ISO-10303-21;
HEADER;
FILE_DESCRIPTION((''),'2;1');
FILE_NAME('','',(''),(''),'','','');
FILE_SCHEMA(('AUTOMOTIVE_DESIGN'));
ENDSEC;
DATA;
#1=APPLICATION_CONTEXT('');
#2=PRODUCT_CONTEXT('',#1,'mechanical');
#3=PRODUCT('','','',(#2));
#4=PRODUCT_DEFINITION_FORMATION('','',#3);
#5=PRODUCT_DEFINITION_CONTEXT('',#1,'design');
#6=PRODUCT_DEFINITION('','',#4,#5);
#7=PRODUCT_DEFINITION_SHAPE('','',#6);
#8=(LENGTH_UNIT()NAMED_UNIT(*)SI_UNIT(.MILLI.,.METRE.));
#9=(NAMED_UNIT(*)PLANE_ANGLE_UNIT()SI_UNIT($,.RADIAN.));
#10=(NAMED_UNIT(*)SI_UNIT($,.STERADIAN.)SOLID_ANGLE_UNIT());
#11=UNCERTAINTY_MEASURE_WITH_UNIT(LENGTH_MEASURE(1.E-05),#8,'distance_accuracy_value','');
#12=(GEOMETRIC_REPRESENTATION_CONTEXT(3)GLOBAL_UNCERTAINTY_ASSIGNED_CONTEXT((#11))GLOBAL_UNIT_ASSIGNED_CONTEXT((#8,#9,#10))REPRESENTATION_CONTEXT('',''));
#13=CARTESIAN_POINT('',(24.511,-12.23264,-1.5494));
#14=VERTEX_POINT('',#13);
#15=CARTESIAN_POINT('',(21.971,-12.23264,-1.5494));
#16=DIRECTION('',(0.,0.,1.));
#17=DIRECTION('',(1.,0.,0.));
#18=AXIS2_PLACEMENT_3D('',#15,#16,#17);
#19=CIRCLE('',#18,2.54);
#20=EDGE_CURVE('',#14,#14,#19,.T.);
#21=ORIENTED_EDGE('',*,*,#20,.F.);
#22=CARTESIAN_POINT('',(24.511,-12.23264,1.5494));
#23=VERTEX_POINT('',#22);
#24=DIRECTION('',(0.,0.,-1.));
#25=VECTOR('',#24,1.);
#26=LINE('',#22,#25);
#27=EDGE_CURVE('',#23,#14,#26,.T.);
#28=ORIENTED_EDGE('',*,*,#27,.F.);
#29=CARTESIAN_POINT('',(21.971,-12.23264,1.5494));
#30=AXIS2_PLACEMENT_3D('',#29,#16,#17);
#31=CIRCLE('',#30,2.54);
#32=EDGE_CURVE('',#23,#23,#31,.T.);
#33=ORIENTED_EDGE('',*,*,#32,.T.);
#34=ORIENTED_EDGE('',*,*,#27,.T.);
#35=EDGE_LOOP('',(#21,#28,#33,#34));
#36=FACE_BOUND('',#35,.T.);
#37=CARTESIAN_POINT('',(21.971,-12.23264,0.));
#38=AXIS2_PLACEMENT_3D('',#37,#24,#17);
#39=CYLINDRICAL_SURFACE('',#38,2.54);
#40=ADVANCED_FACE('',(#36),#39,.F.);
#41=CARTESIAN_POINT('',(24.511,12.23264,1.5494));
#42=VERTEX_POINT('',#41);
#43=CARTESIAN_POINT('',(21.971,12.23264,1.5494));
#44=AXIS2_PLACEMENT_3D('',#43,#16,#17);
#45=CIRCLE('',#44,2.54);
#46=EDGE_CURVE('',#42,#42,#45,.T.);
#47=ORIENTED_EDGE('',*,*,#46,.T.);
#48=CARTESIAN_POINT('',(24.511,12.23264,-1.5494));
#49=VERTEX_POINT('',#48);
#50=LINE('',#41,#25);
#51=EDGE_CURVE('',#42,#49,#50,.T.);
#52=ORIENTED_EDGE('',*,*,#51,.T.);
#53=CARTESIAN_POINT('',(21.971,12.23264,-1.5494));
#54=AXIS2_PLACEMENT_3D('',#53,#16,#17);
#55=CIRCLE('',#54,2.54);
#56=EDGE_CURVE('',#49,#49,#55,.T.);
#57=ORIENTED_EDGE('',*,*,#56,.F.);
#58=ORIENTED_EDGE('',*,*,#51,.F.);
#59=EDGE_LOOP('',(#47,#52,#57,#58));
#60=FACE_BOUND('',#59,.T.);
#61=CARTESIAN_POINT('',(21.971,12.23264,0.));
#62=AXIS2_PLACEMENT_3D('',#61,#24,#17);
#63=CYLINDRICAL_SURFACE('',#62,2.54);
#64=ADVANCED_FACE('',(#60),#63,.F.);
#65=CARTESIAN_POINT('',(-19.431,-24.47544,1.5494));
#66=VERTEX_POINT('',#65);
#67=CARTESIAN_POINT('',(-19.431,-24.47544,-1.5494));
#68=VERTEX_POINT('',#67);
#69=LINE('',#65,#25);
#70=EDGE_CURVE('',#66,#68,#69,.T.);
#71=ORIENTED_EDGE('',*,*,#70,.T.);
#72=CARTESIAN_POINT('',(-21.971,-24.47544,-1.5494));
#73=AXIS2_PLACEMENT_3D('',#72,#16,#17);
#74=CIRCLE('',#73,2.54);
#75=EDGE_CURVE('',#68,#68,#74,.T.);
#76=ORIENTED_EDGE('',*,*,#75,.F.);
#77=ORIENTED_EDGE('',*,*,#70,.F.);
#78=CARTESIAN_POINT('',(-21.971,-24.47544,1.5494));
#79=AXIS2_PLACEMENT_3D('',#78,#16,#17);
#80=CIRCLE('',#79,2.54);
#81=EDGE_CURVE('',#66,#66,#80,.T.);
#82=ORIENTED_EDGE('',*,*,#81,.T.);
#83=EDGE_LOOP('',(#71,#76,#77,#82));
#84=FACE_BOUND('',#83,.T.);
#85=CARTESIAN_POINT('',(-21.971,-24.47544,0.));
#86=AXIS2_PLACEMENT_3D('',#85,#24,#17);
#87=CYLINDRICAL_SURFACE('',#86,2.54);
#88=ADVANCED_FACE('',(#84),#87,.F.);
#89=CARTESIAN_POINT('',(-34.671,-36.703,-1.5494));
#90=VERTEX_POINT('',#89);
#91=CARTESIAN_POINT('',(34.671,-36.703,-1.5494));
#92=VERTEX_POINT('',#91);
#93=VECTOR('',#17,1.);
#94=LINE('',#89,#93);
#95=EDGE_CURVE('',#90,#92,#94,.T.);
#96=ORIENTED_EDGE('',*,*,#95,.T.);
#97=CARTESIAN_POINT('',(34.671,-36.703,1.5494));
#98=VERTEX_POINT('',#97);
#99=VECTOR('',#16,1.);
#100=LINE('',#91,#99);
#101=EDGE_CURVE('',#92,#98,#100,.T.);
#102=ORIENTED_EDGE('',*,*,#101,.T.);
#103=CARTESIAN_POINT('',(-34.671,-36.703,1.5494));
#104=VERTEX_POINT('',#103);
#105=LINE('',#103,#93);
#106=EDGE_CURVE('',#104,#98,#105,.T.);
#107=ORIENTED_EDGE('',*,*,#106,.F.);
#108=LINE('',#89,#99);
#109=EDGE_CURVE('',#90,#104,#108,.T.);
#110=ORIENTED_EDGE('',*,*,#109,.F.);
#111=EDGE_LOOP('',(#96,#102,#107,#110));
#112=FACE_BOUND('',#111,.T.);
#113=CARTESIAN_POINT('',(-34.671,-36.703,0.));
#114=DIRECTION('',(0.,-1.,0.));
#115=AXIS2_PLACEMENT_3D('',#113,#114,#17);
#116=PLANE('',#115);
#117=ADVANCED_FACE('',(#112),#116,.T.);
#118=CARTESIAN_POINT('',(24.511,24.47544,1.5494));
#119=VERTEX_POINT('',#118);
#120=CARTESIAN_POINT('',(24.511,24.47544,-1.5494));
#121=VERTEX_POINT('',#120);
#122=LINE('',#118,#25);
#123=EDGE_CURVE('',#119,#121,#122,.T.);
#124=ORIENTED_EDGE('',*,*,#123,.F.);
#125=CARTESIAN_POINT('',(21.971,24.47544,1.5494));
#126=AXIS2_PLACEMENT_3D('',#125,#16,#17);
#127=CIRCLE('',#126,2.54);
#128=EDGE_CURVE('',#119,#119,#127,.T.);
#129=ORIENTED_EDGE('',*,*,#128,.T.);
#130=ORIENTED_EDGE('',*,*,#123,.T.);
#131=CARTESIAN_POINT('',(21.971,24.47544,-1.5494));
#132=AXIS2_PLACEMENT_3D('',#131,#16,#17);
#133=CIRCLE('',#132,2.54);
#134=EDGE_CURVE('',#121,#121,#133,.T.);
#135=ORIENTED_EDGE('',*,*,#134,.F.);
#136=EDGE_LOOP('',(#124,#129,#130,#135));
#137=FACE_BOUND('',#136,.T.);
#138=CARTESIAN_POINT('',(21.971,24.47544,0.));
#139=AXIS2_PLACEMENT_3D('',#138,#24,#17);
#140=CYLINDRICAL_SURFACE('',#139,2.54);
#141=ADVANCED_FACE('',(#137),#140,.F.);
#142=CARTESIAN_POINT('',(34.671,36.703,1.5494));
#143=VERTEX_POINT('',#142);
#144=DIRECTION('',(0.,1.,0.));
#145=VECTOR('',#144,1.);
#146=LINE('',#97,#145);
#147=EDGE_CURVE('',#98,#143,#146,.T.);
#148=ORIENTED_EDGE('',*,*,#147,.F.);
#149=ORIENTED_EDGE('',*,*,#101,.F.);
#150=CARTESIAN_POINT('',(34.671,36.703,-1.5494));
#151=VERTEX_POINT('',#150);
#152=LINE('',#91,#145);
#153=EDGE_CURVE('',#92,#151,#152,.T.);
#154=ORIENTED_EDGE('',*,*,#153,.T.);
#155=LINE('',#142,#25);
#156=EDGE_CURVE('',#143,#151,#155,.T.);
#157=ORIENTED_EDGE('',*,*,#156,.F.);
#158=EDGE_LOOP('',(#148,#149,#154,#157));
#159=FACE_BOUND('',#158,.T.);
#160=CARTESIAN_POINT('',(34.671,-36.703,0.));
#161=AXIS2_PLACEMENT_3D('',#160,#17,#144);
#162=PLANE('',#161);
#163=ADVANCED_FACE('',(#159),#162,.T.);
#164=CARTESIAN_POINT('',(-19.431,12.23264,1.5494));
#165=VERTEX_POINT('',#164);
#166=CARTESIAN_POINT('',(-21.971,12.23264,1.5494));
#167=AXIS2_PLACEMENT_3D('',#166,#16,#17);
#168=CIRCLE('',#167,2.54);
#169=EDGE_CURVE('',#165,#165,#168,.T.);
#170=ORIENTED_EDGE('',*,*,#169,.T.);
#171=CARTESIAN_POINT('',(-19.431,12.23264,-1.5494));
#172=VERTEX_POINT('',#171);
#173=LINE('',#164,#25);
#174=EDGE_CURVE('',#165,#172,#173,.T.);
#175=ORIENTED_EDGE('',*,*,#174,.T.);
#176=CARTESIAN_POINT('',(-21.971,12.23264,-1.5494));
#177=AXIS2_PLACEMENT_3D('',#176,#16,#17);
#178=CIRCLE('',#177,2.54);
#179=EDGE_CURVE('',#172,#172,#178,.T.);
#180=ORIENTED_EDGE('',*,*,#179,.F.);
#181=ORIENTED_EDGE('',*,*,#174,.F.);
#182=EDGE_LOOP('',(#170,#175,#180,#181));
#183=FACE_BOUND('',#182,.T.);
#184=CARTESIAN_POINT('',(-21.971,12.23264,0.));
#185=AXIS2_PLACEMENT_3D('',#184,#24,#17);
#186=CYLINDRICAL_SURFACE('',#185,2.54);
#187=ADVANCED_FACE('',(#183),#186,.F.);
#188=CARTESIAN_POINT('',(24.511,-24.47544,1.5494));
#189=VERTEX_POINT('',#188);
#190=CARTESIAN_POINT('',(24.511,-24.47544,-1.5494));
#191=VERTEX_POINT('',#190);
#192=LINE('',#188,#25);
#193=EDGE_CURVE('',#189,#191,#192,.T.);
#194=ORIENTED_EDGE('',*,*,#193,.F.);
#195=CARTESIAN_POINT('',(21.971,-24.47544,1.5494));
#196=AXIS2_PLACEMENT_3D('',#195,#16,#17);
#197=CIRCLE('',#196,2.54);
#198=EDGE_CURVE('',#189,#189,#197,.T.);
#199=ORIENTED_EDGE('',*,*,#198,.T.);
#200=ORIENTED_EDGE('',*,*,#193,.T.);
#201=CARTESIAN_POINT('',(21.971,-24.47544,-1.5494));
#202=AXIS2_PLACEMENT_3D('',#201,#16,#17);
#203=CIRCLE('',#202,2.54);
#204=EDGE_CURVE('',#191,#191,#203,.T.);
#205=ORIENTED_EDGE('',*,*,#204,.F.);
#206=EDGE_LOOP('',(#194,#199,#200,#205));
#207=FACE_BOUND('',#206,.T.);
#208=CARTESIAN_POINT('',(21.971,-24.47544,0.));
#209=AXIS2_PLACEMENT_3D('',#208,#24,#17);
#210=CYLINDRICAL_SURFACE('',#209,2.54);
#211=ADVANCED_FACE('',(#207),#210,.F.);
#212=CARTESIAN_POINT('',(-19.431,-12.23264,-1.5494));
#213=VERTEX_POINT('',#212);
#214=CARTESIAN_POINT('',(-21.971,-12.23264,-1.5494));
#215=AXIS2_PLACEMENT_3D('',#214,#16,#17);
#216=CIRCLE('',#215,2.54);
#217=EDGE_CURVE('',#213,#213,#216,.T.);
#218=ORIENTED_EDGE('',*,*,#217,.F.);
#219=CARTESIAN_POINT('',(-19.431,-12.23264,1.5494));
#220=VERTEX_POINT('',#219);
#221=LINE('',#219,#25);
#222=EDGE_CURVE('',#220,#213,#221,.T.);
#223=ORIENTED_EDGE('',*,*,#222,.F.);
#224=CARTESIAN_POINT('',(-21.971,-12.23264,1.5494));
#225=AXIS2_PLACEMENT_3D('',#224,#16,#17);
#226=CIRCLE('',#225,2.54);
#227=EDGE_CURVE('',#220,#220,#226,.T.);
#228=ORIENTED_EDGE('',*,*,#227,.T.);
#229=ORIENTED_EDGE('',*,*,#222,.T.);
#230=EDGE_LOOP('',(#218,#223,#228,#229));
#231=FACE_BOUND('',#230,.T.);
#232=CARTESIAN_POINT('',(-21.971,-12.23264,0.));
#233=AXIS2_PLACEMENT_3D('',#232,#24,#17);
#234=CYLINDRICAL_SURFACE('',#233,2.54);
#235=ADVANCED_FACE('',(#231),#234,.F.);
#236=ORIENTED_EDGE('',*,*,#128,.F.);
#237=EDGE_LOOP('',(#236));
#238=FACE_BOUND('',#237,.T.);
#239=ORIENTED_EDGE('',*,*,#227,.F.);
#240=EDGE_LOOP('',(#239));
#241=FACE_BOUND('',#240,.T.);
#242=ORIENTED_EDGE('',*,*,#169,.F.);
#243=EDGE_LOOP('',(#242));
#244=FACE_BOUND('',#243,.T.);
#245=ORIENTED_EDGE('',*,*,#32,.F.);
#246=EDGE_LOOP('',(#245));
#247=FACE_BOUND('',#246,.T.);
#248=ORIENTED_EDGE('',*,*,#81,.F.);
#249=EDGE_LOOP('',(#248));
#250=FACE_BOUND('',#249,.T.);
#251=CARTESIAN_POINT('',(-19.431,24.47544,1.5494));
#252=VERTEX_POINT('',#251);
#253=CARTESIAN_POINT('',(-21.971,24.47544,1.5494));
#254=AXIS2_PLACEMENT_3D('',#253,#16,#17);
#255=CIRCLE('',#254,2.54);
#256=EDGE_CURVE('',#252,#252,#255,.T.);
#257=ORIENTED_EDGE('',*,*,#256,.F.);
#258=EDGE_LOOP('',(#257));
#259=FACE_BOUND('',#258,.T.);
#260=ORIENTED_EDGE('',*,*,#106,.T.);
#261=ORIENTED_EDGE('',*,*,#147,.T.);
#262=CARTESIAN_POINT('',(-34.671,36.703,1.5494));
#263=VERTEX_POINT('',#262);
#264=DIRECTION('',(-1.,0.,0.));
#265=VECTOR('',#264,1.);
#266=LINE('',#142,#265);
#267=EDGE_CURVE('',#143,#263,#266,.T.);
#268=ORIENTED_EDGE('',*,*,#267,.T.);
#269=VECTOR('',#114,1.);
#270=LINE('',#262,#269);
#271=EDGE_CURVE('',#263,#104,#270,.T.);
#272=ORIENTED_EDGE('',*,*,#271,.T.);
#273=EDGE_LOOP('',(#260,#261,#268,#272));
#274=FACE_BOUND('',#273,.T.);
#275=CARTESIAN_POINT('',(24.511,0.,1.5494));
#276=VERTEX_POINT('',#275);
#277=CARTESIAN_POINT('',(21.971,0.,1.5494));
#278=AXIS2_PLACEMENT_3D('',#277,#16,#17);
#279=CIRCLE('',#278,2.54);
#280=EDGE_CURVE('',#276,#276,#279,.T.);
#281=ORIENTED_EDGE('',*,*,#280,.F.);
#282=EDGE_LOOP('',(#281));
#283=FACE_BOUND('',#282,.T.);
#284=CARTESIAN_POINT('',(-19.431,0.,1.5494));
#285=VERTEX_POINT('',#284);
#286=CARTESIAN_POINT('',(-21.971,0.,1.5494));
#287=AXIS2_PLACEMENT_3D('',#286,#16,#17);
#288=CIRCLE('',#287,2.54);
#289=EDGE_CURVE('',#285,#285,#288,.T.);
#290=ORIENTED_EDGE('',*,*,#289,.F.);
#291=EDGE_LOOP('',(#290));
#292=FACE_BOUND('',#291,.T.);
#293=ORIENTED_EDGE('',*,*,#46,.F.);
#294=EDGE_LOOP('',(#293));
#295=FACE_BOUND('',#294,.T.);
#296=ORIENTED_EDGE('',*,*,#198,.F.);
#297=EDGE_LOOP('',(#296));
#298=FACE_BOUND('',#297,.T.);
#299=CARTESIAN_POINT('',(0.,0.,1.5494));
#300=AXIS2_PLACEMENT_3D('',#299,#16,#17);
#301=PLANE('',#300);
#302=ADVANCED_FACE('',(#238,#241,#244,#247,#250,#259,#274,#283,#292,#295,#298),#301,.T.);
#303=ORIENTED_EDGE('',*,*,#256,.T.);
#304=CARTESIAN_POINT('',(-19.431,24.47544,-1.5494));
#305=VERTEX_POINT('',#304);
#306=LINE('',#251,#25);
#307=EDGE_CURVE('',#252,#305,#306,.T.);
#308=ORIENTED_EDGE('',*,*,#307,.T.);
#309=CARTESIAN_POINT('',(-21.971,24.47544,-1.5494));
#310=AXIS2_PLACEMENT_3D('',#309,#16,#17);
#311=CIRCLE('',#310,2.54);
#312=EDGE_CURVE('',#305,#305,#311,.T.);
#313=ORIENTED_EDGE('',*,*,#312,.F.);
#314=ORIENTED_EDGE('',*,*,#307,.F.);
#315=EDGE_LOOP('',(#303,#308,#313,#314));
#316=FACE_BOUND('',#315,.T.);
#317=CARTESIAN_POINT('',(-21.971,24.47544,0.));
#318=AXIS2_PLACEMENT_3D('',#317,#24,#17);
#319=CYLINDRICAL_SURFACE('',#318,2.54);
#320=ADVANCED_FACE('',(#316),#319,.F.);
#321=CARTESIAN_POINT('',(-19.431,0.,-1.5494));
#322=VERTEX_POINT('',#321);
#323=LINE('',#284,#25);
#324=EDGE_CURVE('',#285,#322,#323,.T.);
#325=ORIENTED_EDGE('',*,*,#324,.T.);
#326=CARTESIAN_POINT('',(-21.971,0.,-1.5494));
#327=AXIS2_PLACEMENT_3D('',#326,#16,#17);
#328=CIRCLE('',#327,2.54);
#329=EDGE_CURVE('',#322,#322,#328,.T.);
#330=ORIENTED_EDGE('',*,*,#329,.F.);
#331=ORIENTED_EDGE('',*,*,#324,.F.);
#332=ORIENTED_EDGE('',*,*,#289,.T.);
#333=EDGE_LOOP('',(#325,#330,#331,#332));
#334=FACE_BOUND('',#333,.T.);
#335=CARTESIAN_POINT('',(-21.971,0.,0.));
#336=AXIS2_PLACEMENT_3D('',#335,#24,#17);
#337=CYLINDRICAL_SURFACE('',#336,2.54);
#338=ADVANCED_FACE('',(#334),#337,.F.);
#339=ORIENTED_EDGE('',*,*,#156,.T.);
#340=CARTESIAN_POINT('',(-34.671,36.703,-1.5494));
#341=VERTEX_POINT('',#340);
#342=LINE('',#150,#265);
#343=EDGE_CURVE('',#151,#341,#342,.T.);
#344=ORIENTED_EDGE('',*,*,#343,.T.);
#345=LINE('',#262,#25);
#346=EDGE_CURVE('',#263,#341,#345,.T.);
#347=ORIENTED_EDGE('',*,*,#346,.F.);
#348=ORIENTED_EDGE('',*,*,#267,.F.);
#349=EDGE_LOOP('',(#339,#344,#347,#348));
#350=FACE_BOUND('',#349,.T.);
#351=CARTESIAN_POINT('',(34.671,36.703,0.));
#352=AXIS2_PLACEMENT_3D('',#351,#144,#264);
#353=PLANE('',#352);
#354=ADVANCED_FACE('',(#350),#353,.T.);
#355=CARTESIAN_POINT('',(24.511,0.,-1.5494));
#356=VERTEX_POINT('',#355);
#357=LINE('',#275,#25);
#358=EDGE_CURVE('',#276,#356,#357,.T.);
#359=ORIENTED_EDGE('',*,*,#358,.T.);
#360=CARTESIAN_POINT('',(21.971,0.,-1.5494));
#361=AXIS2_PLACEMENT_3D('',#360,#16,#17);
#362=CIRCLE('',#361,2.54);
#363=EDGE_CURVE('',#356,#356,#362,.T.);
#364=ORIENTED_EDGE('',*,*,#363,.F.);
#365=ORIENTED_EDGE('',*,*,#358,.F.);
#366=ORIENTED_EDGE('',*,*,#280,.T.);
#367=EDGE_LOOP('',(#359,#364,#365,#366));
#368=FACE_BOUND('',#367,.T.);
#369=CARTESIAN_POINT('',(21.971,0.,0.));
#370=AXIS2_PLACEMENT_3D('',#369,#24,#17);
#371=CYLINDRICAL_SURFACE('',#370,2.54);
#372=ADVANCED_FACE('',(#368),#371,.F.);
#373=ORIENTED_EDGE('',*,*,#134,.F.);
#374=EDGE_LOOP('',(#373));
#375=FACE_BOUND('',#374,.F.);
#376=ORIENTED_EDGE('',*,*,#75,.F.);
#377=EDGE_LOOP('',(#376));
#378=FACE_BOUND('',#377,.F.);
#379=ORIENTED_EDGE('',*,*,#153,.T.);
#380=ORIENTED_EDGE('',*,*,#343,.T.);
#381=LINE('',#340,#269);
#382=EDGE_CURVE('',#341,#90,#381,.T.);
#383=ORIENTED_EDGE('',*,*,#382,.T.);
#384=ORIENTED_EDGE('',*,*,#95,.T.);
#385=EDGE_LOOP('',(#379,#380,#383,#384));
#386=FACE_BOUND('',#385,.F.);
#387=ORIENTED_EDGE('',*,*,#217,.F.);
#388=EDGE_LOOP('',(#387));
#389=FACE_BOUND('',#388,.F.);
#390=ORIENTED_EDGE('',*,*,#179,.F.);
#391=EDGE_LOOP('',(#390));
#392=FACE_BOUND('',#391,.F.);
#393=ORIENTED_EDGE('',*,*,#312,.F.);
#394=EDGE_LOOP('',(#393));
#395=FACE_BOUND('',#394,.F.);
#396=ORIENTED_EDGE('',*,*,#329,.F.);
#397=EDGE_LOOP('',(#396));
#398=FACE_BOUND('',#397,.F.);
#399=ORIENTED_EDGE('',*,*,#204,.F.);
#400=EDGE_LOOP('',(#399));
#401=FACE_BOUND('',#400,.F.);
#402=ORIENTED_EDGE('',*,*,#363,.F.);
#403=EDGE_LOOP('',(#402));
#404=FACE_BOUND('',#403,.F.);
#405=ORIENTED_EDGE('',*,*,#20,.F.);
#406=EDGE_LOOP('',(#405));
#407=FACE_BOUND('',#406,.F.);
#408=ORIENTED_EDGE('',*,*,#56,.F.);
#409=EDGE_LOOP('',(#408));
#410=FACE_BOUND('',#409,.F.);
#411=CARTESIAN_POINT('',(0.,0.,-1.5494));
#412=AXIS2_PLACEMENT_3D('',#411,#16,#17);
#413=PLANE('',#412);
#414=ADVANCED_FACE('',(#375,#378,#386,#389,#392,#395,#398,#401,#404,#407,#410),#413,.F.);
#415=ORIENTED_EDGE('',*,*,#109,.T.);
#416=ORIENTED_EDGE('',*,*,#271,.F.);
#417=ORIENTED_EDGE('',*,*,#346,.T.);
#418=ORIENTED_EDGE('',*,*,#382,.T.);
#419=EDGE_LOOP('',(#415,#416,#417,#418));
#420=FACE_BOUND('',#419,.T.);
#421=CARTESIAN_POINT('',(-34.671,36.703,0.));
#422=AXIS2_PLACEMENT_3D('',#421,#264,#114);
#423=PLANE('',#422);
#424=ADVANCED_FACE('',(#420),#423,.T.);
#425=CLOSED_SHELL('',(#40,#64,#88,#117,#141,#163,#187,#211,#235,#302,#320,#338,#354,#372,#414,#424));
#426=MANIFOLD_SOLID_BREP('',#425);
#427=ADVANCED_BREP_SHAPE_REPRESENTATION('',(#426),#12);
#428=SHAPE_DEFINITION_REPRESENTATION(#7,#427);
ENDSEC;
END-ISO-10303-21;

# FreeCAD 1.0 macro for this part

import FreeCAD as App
import Part
import Sketcher
from FreeCAD import Vector
Q = App.Units.Quantity

doc = App.newDocument("Part")
body = doc.addObject("PartDesign::Body", "Body")

sketch1 = body.newObject("Sketcher::SketchObject", "Sketch")
sketch1.AttachmentSupport = (doc.getObject("XY_Plane"), [""])
sketch1.MapMode = "FlatFace"
sketch1.addGeometry(Part.LineSegment(Vector(-34.7, 36.7, 0), Vector(-34.7, -36.7, 0)), False)
sketch1.addGeometry(Part.LineSegment(Vector(-34.7, -36.7, 0), Vector(34.7, -36.7, 0)), False)
sketch1.addGeometry(Part.LineSegment(Vector(34.7, -36.7, 0), Vector(34.7, 36.7, 0)), False)
sketch1.addGeometry(Part.LineSegment(Vector(34.7, 36.7, 0), Vector(-34.7, 36.7, 0)), False)
sketch1.addGeometry(Part.Circle(Vector(-22, -24.5, 0), Vector(0, 0, 1), 2.5), False)
sketch1.addGeometry(Part.Circle(Vector(-22, -12.2, 0), Vector(0, 0, 1), 2.5), False)
sketch1.addGeometry(Part.Circle(Vector(-22, 0, 0), Vector(0, 0, 1), 2.5), False)
sketch1.addGeometry(Part.Circle(Vector(22, -24.5, 0), Vector(0, 0, 1), 2.5), False)
sketch1.addGeometry(Part.Circle(Vector(22, -12.2, 0), Vector(0, 0, 1), 2.5), False)
sketch1.addGeometry(Part.Circle(Vector(22, 0, 0), Vector(0, 0, 1), 2.5), False)
sketch1.addGeometry(Part.Circle(Vector(-22, 12.2, 0), Vector(0, 0, 1), 2.5), False)
sketch1.addGeometry(Part.Circle(Vector(-22, 24.5, 0), Vector(0, 0, 1), 2.5), False)
sketch1.addGeometry(Part.Circle(Vector(22, 12.2, 0), Vector(0, 0, 1), 2.5), False)
sketch1.addGeometry(Part.Circle(Vector(22, 24.5, 0), Vector(0, 0, 1), 2.5), False)
sketch1.addConstraint(Sketcher.Constraint("Coincident", 0, 2, 1, 1))
sketch1.addConstraint(Sketcher.Constraint("Coincident", 1, 2, 2, 1))
sketch1.addConstraint(Sketcher.Constraint("Coincident", 2, 2, 3, 1))
sketch1.addConstraint(Sketcher.Constraint("Coincident", 3, 2, 0, 1))
sketch1.addConstraint(Sketcher.Constraint("Vertical", 0))
sketch1.addConstraint(Sketcher.Constraint("Horizontal", 1))
sketch1.addConstraint(Sketcher.Constraint("Vertical", 2))
sketch1.addConstraint(Sketcher.Constraint("Horizontal", 3))
sketch1.addConstraint(Sketcher.Constraint("Equal", 4, 5))
sketch1.addConstraint(Sketcher.Constraint("Equal", 5, 6))
sketch1.addConstraint(Sketcher.Constraint("Equal", 6, 7))
sketch1.addConstraint(Sketcher.Constraint("Equal", 7, 8))
sketch1.addConstraint(Sketcher.Constraint("Equal", 8, 9))
sketch1.addConstraint(Sketcher.Constraint("Equal", 9, 10))
sketch1.addConstraint(Sketcher.Constraint("Equal", 10, 11))
sketch1.addConstraint(Sketcher.Constraint("Equal", 11, 12))
sketch1.addConstraint(Sketcher.Constraint("Equal", 12, 13))
sketch1.addConstraint(Sketcher.Constraint("Symmetric", 6, 3, 9, 3, -1, 1))
sketch1.addConstraint(Sketcher.Constraint("Symmetric", 8, 3, 10, 3, -1, 1))
sketch1.addConstraint(Sketcher.Constraint("Symmetric", 7, 3, 11, 3, -1, 1))
sketch1.addConstraint(Sketcher.Constraint("Symmetric", 5, 3, 12, 3, -1, 1))
sketch1.addConstraint(Sketcher.Constraint("Symmetric", 4, 3, 13, 3, -1, 1))
sketch1.addConstraint(Sketcher.Constraint("Symmetric", 0, 2, 2, 2, -1, 1))
sketch1.addConstraint(Sketcher.Constraint("Symmetric", 4, 3, 7, 3, -2))
sketch1.addConstraint(Sketcher.Constraint("Symmetric", 5, 3, 8, 3, -2))
sketch1.addConstraint(Sketcher.Constraint("PointOnObject", 6, 3, -1))
sketch1.addConstraint(Sketcher.Constraint("Vertical", 4, 3, 5, 3))
sketch1.addConstraint(Sketcher.Constraint("Vertical", 5, 3, 6, 3))
sketch1.addConstraint(Sketcher.Constraint("Diameter", 4, Q("0.2 in")))
sketch1.addConstraint(Sketcher.Constraint("DistanceX", 1, 1, 1, 2, Q("2.73 in")))
sketch1.addConstraint(Sketcher.Constraint("DistanceY", 0, 2, 0, 1, Q("2.89 in")))
sketch1.addConstraint(Sketcher.Constraint("DistanceX", 0, 2, 4, 3, Q("0.5 in")))
sketch1.addConstraint(Sketcher.Constraint("DistanceY", 4, 3, 5, 3, Q("0.482 in")))
sketch1.addConstraint(Sketcher.Constraint("DistanceY", 4, 3, -1, 1, Q("0.9636 in")))
pad1 = body.newObject("PartDesign::Pad", "Pad")
pad1.Profile = sketch1
pad1.Length = Q("0.122 in")
pad1.Midplane = True

doc.recompute()
